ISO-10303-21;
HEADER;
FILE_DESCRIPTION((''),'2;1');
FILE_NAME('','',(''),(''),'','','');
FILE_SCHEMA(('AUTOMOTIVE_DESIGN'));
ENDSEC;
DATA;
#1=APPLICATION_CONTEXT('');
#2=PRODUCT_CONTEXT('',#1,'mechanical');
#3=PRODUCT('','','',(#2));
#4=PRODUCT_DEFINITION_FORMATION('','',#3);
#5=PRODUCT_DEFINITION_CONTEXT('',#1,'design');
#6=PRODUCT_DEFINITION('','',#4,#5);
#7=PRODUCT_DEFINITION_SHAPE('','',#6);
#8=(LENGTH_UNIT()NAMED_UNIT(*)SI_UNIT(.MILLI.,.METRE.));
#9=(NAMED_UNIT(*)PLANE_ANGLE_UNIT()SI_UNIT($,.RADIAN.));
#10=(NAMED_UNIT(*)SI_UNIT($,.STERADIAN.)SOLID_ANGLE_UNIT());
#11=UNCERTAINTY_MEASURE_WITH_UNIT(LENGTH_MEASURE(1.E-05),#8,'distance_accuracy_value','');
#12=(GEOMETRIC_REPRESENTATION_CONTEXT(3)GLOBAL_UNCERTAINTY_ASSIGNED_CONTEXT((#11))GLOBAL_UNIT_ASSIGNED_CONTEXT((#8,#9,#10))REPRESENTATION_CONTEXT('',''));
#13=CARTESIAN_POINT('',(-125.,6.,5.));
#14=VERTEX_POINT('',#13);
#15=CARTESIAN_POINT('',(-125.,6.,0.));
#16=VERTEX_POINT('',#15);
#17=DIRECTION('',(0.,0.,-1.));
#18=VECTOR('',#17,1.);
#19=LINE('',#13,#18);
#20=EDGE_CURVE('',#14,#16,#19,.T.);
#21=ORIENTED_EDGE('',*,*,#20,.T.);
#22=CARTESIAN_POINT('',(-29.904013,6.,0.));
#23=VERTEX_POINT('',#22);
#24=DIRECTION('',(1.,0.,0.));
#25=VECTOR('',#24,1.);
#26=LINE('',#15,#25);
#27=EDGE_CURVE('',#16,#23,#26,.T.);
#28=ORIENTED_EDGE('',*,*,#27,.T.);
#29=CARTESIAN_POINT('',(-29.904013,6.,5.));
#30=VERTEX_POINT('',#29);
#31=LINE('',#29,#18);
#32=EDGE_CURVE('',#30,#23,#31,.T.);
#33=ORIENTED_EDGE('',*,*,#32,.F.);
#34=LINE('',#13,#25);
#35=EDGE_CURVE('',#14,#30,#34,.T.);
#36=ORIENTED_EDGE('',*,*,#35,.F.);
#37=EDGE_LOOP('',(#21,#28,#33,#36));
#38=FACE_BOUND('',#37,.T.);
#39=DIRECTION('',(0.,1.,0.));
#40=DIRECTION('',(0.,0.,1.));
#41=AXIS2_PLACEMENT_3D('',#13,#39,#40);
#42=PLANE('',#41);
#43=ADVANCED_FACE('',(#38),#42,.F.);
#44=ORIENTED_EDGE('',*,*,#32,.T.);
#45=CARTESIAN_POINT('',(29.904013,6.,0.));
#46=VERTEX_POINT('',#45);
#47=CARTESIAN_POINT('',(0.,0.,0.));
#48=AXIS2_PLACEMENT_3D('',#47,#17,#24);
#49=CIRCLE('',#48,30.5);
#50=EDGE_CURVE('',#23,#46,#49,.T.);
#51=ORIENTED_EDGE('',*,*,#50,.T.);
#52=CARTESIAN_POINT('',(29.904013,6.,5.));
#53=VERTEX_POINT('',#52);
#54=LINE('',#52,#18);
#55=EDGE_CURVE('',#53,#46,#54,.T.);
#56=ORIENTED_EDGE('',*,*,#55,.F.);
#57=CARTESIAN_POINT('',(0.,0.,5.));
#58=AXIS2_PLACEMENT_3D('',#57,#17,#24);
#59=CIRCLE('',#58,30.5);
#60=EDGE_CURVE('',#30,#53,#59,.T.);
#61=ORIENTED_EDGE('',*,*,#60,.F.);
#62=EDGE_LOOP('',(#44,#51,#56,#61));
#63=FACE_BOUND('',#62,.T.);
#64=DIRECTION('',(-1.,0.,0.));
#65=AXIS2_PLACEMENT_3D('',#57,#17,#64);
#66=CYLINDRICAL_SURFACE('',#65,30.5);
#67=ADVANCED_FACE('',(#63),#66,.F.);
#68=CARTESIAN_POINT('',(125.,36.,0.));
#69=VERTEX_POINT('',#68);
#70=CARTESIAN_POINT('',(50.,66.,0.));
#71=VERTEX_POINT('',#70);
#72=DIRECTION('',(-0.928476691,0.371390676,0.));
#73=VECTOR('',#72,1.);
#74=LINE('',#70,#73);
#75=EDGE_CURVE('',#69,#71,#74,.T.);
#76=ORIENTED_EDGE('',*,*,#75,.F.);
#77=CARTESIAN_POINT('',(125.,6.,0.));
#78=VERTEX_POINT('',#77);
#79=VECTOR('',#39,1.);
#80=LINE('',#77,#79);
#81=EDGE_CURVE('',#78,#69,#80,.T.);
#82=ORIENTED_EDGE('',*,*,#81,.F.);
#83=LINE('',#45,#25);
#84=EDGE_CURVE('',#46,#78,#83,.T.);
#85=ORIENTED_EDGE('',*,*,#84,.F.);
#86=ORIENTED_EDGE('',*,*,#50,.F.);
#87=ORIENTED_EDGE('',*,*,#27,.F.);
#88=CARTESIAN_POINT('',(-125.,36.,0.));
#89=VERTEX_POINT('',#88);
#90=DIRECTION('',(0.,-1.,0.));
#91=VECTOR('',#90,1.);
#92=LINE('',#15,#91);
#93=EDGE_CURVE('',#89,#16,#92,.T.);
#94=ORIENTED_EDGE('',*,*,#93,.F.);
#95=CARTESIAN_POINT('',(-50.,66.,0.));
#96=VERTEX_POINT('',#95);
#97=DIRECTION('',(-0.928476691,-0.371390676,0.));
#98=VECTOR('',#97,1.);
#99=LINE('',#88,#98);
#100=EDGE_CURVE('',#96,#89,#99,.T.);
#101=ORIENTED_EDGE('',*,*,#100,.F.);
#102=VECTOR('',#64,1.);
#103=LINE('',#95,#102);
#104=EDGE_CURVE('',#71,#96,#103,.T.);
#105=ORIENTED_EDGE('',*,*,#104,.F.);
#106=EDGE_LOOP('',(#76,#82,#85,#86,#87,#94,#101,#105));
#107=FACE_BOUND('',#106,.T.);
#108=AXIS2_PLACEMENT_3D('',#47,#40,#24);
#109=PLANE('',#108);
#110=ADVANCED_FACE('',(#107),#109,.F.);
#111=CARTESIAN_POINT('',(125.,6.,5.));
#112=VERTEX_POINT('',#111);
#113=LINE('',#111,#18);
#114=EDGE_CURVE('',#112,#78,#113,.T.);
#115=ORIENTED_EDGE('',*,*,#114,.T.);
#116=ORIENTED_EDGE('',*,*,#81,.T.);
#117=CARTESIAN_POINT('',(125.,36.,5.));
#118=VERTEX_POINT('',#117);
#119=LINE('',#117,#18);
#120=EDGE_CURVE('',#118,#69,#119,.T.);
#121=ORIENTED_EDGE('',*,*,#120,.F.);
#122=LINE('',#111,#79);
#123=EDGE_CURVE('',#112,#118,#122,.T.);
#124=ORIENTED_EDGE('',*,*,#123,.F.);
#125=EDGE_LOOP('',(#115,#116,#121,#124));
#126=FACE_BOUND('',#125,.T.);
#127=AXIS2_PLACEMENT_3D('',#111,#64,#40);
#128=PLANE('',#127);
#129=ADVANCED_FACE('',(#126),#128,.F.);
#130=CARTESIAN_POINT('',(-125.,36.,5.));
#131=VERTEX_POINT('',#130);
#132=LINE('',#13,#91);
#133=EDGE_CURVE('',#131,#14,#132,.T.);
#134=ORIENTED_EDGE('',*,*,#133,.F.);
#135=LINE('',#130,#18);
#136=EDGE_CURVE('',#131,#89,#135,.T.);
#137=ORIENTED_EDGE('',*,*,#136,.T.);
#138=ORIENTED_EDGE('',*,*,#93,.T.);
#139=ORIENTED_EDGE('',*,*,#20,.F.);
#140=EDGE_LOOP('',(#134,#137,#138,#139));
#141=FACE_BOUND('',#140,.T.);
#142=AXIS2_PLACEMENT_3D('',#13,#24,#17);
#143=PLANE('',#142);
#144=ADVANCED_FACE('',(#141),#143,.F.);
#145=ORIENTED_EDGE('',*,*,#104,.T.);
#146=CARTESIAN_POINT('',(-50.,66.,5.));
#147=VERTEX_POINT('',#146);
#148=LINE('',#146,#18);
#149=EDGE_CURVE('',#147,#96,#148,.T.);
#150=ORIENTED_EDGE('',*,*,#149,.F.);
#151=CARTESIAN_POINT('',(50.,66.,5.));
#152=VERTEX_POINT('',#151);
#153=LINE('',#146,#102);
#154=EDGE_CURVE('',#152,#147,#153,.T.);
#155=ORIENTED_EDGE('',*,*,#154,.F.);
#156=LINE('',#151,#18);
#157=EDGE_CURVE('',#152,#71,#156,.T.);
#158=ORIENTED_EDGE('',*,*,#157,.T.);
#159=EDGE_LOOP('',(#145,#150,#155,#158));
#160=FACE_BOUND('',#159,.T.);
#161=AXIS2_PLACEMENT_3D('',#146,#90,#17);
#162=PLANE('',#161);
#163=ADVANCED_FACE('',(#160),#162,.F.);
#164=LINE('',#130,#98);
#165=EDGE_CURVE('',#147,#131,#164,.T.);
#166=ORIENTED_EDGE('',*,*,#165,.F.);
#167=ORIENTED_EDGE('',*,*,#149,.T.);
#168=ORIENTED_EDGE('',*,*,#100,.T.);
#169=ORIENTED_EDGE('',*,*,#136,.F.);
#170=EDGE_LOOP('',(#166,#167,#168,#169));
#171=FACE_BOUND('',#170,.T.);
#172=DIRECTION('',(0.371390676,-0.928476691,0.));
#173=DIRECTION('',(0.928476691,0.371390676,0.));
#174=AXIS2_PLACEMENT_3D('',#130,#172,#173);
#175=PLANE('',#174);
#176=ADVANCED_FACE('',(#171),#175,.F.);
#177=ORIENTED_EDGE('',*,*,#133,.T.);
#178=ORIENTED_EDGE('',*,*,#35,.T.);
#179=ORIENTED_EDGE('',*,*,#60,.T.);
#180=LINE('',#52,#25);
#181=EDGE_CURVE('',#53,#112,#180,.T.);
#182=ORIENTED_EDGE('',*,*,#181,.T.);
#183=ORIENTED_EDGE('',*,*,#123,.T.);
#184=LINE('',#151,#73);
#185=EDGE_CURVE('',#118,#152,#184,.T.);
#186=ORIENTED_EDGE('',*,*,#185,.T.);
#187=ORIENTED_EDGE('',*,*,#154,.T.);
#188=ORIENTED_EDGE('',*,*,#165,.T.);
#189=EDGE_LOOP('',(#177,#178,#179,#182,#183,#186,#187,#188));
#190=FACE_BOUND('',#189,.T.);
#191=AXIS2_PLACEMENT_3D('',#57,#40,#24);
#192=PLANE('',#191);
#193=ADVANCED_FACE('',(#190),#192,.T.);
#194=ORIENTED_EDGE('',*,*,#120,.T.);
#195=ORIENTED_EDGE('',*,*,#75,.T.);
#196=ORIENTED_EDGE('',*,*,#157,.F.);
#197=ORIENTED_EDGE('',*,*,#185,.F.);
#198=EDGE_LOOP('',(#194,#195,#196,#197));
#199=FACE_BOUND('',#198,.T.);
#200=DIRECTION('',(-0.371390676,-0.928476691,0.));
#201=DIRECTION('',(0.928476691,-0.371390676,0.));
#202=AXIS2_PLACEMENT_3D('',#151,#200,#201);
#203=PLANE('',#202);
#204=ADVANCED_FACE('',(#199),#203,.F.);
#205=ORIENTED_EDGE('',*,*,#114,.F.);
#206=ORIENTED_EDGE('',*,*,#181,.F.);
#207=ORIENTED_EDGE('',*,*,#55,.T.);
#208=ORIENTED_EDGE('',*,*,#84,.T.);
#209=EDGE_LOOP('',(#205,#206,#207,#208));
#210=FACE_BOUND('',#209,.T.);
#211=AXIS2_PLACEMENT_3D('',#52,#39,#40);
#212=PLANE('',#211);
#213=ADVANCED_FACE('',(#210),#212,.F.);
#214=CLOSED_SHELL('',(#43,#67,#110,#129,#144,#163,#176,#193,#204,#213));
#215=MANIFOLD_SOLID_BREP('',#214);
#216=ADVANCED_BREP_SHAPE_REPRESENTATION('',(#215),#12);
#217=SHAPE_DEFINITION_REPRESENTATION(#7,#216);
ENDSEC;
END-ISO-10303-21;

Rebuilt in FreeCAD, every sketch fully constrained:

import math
import FreeCAD as App
import Part
import Sketcher
Q = App.Units.Quantity

doc = App.newDocument("Part")
body = doc.addObject("PartDesign::Body", "Body")

sketch1 = body.newObject("Sketcher::SketchObject", "Sketch")
sketch1.AttachmentSupport = (doc.getObject("XY_Plane"), [""])
sketch1.MapMode = "FlatFace"
sketch1.addGeometry(Part.LineSegment(App.Vector(-50, 66, 0), App.Vector(-125, 36, 0)), False)
sketch1.addGeometry(Part.LineSegment(App.Vector(-125, 36, 0), App.Vector(-125, 6, 0)), False)
sketch1.addGeometry(Part.LineSegment(App.Vector(-125, 6, 0), App.Vector(-30, 6, 0)), False)
sketch1.addGeometry(Part.ArcOfCircle(Part.Circle(App.Vector(0, 0, 0), App.Vector(0, 0, 1), 30), math.radians(11), math.radians(169)), False)
sketch1.addGeometry(Part.LineSegment(App.Vector(30, 6, 0), App.Vector(125, 6, 0)), False)
sketch1.addGeometry(Part.LineSegment(App.Vector(125, 6, 0), App.Vector(125, 36, 0)), False)
sketch1.addGeometry(Part.LineSegment(App.Vector(125, 36, 0), App.Vector(50, 66, 0)), False)
sketch1.addGeometry(Part.LineSegment(App.Vector(50, 66, 0), App.Vector(-50, 66, 0)), False)
sketch1.addConstraint(Sketcher.Constraint("Coincident", 0, 2, 1, 1))
sketch1.addConstraint(Sketcher.Constraint("Coincident", 1, 2, 2, 1))
sketch1.addConstraint(Sketcher.Constraint("Coincident", 2, 2, 3, 2))
sketch1.addConstraint(Sketcher.Constraint("Coincident", 3, 1, 4, 1))
sketch1.addConstraint(Sketcher.Constraint("Coincident", 4, 2, 5, 1))
sketch1.addConstraint(Sketcher.Constraint("Coincident", 5, 2, 6, 1))
sketch1.addConstraint(Sketcher.Constraint("Coincident", 6, 2, 7, 1))
sketch1.addConstraint(Sketcher.Constraint("Coincident", 7, 2, 0, 1))
sketch1.addConstraint(Sketcher.Constraint("Vertical", 1))
sketch1.addConstraint(Sketcher.Constraint("Horizontal", 2))
sketch1.addConstraint(Sketcher.Constraint("Horizontal", 4))
sketch1.addConstraint(Sketcher.Constraint("Vertical", 5))
sketch1.addConstraint(Sketcher.Constraint("Horizontal", 7))
sketch1.addConstraint(Sketcher.Constraint("Coincident", 3, 3, -1, 1))
sketch1.addConstraint(Sketcher.Constraint("Symmetric", 1, 2, 4, 2, -2))
sketch1.addConstraint(Sketcher.Constraint("Horizontal", 0, 2, 5, 2))
sketch1.addConstraint(Sketcher.Constraint("Equal", 0, 6))
sketch1.addConstraint(Sketcher.Constraint("Radius", 3, Q("30.5 mm")))
sketch1.addConstraint(Sketcher.Constraint("DistanceX", 7, 2, 7, 1, Q("100 mm")))
sketch1.addConstraint(Sketcher.Constraint("DistanceY", 1, 2, 1, 1, Q("30 mm")))
sketch1.addConstraint(Sketcher.Constraint("DistanceX", 0, 2, -1, 1, Q("125 mm")))
sketch1.addConstraint(Sketcher.Constraint("DistanceY", -1, 1, 0, 2, Q("36 mm")))
sketch1.addConstraint(Sketcher.Constraint("DistanceY", -1, 1, 6, 2, Q("66 mm")))
pad1 = body.newObject("PartDesign::Pad", "Pad")
pad1.Profile = sketch1
pad1.Length = 5

doc.recompute()
